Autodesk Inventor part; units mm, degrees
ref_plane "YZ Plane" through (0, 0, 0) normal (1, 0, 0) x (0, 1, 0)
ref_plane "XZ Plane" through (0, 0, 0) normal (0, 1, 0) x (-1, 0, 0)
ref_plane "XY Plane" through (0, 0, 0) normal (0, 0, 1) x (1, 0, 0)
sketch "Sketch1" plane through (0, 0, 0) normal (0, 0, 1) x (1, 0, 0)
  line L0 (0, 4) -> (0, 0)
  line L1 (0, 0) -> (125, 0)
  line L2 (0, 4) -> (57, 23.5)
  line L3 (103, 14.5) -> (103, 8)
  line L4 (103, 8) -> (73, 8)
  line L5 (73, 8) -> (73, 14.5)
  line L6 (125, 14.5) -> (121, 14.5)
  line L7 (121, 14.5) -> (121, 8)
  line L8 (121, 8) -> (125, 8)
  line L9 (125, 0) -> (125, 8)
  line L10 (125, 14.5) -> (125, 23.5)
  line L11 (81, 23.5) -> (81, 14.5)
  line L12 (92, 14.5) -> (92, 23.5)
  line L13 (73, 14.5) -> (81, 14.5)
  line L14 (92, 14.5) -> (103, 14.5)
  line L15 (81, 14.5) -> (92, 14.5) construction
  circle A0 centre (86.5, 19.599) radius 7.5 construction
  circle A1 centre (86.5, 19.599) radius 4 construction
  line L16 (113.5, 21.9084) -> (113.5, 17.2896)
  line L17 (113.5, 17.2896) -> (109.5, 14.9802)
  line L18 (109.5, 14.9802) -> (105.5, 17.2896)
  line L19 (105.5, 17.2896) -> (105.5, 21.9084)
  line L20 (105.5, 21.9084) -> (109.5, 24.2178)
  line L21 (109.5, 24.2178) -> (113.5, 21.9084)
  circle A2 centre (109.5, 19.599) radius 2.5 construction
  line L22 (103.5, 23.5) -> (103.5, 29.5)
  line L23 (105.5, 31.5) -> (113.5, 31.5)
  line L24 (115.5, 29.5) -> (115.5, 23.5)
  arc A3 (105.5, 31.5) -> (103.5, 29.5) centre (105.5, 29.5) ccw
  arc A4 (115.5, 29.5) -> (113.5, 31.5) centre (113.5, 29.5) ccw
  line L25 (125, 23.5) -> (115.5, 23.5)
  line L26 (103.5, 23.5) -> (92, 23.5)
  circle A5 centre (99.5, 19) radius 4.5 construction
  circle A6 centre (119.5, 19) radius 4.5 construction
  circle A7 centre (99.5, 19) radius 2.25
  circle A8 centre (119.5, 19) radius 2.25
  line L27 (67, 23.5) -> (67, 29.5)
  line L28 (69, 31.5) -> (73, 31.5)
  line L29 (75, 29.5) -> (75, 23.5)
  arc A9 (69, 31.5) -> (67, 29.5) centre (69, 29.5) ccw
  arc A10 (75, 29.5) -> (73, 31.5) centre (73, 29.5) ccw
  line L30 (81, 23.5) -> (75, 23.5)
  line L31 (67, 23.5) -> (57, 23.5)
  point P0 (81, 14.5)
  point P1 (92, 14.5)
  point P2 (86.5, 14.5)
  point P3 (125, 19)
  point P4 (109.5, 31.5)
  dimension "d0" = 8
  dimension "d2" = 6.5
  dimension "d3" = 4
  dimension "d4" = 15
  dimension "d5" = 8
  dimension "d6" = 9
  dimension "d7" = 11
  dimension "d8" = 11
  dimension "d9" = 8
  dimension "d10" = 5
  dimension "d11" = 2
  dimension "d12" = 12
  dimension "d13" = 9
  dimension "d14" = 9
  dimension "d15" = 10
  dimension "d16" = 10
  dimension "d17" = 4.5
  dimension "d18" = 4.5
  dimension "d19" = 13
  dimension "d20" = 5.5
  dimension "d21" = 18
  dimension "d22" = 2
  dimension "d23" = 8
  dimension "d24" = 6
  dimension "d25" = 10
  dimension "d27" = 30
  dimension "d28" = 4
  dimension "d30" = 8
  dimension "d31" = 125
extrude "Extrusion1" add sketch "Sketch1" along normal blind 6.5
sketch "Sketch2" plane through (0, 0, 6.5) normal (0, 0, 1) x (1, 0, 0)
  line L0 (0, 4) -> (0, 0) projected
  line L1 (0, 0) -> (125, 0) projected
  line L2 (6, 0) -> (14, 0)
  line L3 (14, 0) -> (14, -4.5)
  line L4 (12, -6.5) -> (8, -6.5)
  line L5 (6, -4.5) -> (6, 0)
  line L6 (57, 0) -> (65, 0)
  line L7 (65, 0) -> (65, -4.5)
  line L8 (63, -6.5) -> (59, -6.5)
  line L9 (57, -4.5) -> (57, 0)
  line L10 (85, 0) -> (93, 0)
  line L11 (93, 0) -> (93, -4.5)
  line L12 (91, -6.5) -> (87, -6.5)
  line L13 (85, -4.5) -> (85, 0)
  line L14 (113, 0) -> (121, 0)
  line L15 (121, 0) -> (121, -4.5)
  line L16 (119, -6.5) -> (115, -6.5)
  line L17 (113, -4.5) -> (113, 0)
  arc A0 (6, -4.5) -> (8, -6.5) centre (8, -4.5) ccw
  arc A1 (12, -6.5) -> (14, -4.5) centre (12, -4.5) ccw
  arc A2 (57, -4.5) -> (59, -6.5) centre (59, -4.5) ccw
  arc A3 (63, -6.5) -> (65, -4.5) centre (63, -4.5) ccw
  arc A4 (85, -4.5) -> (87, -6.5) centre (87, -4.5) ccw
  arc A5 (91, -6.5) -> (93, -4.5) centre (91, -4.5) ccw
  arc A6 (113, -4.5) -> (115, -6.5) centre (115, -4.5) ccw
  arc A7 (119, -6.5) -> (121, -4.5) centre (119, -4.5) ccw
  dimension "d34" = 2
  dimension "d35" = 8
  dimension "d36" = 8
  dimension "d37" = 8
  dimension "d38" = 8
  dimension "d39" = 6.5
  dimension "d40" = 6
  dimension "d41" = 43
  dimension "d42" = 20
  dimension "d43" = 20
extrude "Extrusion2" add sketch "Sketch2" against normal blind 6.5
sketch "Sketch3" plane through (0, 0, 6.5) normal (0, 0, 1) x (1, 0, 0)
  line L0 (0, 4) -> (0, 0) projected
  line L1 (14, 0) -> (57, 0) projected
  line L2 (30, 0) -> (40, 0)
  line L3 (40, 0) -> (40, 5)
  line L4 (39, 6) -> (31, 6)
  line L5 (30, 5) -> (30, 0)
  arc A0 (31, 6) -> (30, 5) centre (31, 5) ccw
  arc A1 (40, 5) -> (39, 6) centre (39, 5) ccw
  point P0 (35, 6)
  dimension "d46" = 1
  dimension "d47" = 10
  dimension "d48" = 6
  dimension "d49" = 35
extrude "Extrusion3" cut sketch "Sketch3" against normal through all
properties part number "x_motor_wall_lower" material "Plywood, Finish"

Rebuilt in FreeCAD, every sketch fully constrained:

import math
import FreeCAD as App
import Part
import Sketcher
from FreeCAD import Vector
Q = App.Units.Quantity

doc = App.newDocument("Part")
body = doc.addObject("PartDesign::Body", "Body")

sketch1 = body.newObject("Sketcher::SketchObject", "Sketch")
sketch1.AttachmentSupport = (doc.getObject("XY_Plane"), [""])
sketch1.MapMode = "FlatFace"
sketch1.addGeometry([
    Part.LineSegment(Vector(57, 23.5, 0), Vector(0, 4, 0)),
    Part.LineSegment(Vector(0, 4, 0), Vector(0, 0, 0)),
    Part.LineSegment(Vector(0, 0, 0), Vector(125, 0, 0)),
    Part.LineSegment(Vector(125, 0, 0), Vector(125, 8, 0)),
    Part.LineSegment(Vector(125, 8, 0), Vector(121, 8, 0)),
    Part.LineSegment(Vector(121, 8, 0), Vector(121, 14.5, 0)),
    Part.LineSegment(Vector(121, 14.5, 0), Vector(125, 14.5, 0)),
    Part.LineSegment(Vector(125, 14.5, 0), Vector(125, 23.5, 0)),
    Part.LineSegment(Vector(125, 23.5, 0), Vector(115.5, 23.5, 0)),
    Part.LineSegment(Vector(115.5, 23.5, 0), Vector(115.5, 29.5, 0)),
    Part.ArcOfCircle(Part.Circle(Vector(113.5, 29.5, 0), Vector(0, 0, 1), 2), math.radians(0), math.radians(90)),
    Part.LineSegment(Vector(113.5, 31.5, 0), Vector(105.5, 31.5, 0)),
    Part.ArcOfCircle(Part.Circle(Vector(105.5, 29.5, 0), Vector(0, 0, 1), 2), math.radians(90), math.radians(180)),
    Part.LineSegment(Vector(103.5, 29.5, 0), Vector(103.5, 23.5, 0)),
    Part.LineSegment(Vector(103.5, 23.5, 0), Vector(92, 23.5, 0)),
    Part.LineSegment(Vector(92, 23.5, 0), Vector(92, 14.5, 0)),
    Part.LineSegment(Vector(92, 14.5, 0), Vector(103, 14.5, 0)),
    Part.LineSegment(Vector(103, 14.5, 0), Vector(103, 8, 0)),
    Part.LineSegment(Vector(103, 8, 0), Vector(73, 8, 0)),
    Part.LineSegment(Vector(73, 8, 0), Vector(73, 14.5, 0)),
    Part.LineSegment(Vector(73, 14.5, 0), Vector(81, 14.5, 0)),
    Part.LineSegment(Vector(81, 14.5, 0), Vector(81, 23.5, 0)),
    Part.LineSegment(Vector(81, 23.5, 0), Vector(75, 23.5, 0)),
    Part.LineSegment(Vector(75, 23.5, 0), Vector(75, 29.5, 0)),
    Part.ArcOfCircle(Part.Circle(Vector(73, 29.5, 0), Vector(0, 0, 1), 2), math.radians(0), math.radians(90)),
    Part.LineSegment(Vector(73, 31.5, 0), Vector(69, 31.5, 0)),
    Part.ArcOfCircle(Part.Circle(Vector(69, 29.5, 0), Vector(0, 0, 1), 2), math.radians(90), math.radians(180)),
    Part.LineSegment(Vector(67, 29.5, 0), Vector(67, 23.5, 0)),
    Part.LineSegment(Vector(67, 23.5, 0), Vector(57, 23.5, 0)),
    Part.Circle(Vector(99.5, 19, 0), Vector(0, 0, 1), 2.2),
    Part.LineSegment(Vector(109.5, 24.2, 0), Vector(113.5, 21.9, 0)),
    Part.LineSegment(Vector(113.5, 21.9, 0), Vector(113.5, 17.3, 0)),
    Part.LineSegment(Vector(113.5, 17.3, 0), Vector(109.5, 15, 0)),
    Part.LineSegment(Vector(109.5, 15, 0), Vector(105.5, 17.3, 0)),
    Part.LineSegment(Vector(105.5, 17.3, 0), Vector(105.5, 21.9, 0)),
    Part.LineSegment(Vector(105.5, 21.9, 0), Vector(109.5, 24.2, 0)),
    Part.Circle(Vector(119.5, 19, 0), Vector(0, 0, 1), 2.2),
], False)
sketch1.addConstraint([
    Sketcher.Constraint("Coincident", 0, 2, 1, 1),
    Sketcher.Constraint("Coincident", 1, 2, 2, 1),
    Sketcher.Constraint("Coincident", 2, 2, 3, 1),
    Sketcher.Constraint("Coincident", 3, 2, 4, 1),
    Sketcher.Constraint("Coincident", 4, 2, 5, 1),
    Sketcher.Constraint("Coincident", 5, 2, 6, 1),
    Sketcher.Constraint("Coincident", 6, 2, 7, 1),
    Sketcher.Constraint("Coincident", 7, 2, 8, 1),
    Sketcher.Constraint("Coincident", 8, 2, 9, 1),
    Sketcher.Constraint("Tangent", 9, 2, 10, 1),
    Sketcher.Constraint("Tangent", 10, 2, 11, 1),
    Sketcher.Constraint("Tangent", 11, 2, 12, 1),
    Sketcher.Constraint("Tangent", 12, 2, 13, 1),
    Sketcher.Constraint("Coincident", 13, 2, 14, 1),
    Sketcher.Constraint("Coincident", 14, 2, 15, 1),
    Sketcher.Constraint("Coincident", 15, 2, 16, 1),
    Sketcher.Constraint("Coincident", 16, 2, 17, 1),
    Sketcher.Constraint("Coincident", 17, 2, 18, 1),
    Sketcher.Constraint("Coincident", 18, 2, 19, 1),
    Sketcher.Constraint("Coincident", 19, 2, 20, 1),
    Sketcher.Constraint("Coincident", 20, 2, 21, 1),
    Sketcher.Constraint("Coincident", 21, 2, 22, 1),
    Sketcher.Constraint("Coincident", 22, 2, 23, 1),
    Sketcher.Constraint("Tangent", 23, 2, 24, 1),
    Sketcher.Constraint("Tangent", 24, 2, 25, 1),
    Sketcher.Constraint("Tangent", 25, 2, 26, 1),
    Sketcher.Constraint("Tangent", 26, 2, 27, 1),
    Sketcher.Constraint("Coincident", 27, 2, 28, 1),
    Sketcher.Constraint("Coincident", 28, 2, 0, 1),
    Sketcher.Constraint("Coincident", 30, 2, 31, 1),
    Sketcher.Constraint("Coincident", 31, 2, 32, 1),
    Sketcher.Constraint("Coincident", 32, 2, 33, 1),
    Sketcher.Constraint("Coincident", 33, 2, 34, 1),
    Sketcher.Constraint("Coincident", 34, 2, 35, 1),
    Sketcher.Constraint("Coincident", 35, 2, 30, 1),
    Sketcher.Constraint("Vertical", 1),
    Sketcher.Constraint("Horizontal", 2),
    Sketcher.Constraint("Vertical", 3),
    Sketcher.Constraint("Horizontal", 4),
    Sketcher.Constraint("Vertical", 5),
    Sketcher.Constraint("Horizontal", 6),
    Sketcher.Constraint("Vertical", 7),
    Sketcher.Constraint("Horizontal", 8),
    Sketcher.Constraint("Vertical", 9),
    Sketcher.Constraint("Horizontal", 11),
    Sketcher.Constraint("Vertical", 13),
    Sketcher.Constraint("Horizontal", 14),
    Sketcher.Constraint("Vertical", 15),
    Sketcher.Constraint("Horizontal", 16),
    Sketcher.Constraint("Vertical", 17),
    Sketcher.Constraint("Horizontal", 18),
    Sketcher.Constraint("Vertical", 19),
    Sketcher.Constraint("Horizontal", 20),
    Sketcher.Constraint("Vertical", 21),
    Sketcher.Constraint("Horizontal", 22),
    Sketcher.Constraint("Vertical", 23),
    Sketcher.Constraint("Horizontal", 25),
    Sketcher.Constraint("Vertical", 27),
    Sketcher.Constraint("Horizontal", 28),
    Sketcher.Constraint("Vertical", 31),
    Sketcher.Constraint("Vertical", 34),
    Sketcher.Constraint("Coincident", 1, 2, -1, 1),
    Sketcher.Constraint("Equal", 10, 12),
    Sketcher.Constraint("Equal", 12, 24),
    Sketcher.Constraint("Equal", 24, 26),
    Sketcher.Constraint("Equal", 29, 36),
    Sketcher.Constraint("Parallel", 30, 33),
    Sketcher.Constraint("Parallel", 32, 35),
    Sketcher.Constraint("Horizontal", 12, 3, 24, 3),
    Sketcher.Constraint("Horizontal", 29, 3, 36, 3),
    Sketcher.Constraint("Horizontal", 8, 2, 13, 2),
    Sketcher.Constraint("Horizontal", 6, 2, 15, 2),
    Sketcher.Constraint("Horizontal", 4, 2, 17, 2),
    Sketcher.Constraint("Horizontal", 16, 2, 19, 2),
    Sketcher.Constraint("Horizontal", 14, 2, 21, 2),
    Sketcher.Constraint("Horizontal", 22, 2, 27, 2),
    Sketcher.Constraint("Horizontal", 31, 2, 33, 2),
    Sketcher.Constraint("Horizontal", 30, 2, 34, 2),
    Sketcher.Constraint("Vertical", 3, 2, 6, 2),
    Sketcher.Constraint("Vertical", 24, 3, 18, 2),
    Sketcher.Constraint("Vertical", 10, 2, 30, 2),
    Sketcher.Constraint("Vertical", 11, 2, 33, 2),
    Sketcher.Constraint("Vertical", 32, 2, 35, 2),
    Sketcher.Constraint("Equal", 11, 20),
    Sketcher.Constraint("Equal", 6, 25),
    Sketcher.Constraint("Equal", 25, 1),
    Sketcher.Constraint("Equal", 20, 3),
    Sketcher.Constraint("Equal", 22, 9),
    Sketcher.Constraint("Radius", 10, Q("2 mm")),
    Sketcher.Constraint("Diameter", 29, Q("4.5 mm")),
    Sketcher.Constraint("DistanceX", 2, 1, 2, 2, Q("125 mm")),
    Sketcher.Constraint("DistanceX", 4, 2, 4, 1, Q("4 mm")),
    Sketcher.Constraint("DistanceX", 11, 2, 11, 1, Q("8 mm")),
    Sketcher.Constraint("DistanceX", 16, 1, 16, 2, Q("11 mm")),
    Sketcher.Constraint("DistanceX", 18, 2, 18, 1, Q("30 mm")),
    Sketcher.Constraint("DistanceX", 28, 2, 28, 1, Q("10 mm")),
    Sketcher.Constraint("DistanceY", 7, 1, 7, 2, Q("9 mm")),
    Sketcher.Constraint("Angle", 30, Q("-30 deg")),
    Sketcher.Constraint("DistanceY", 5, 1, 5, 2, Q("6.5 mm")),
    Sketcher.Constraint("DistanceX", 29, 3, 12, 3, Q("6 mm")),
    Sketcher.Constraint("DistanceX", 10, 3, 36, 3, Q("6 mm")),
    Sketcher.Constraint("DistanceY", 0, 2, 29, 3, Q("15 mm")),
    Sketcher.Constraint("DistanceX", 17, 2, 4, 2, Q("18 mm")),
    Sketcher.Constraint("DistanceX", 36, 3, 2, 2, Q("5.5 mm")),
    Sketcher.Constraint("DistanceY", 31, 2, 31, 1, Q("4.6188 mm")),
    Sketcher.Constraint("DistanceY", -1, 1, 30, 2, Q("21.9084 mm")),
])
pad1 = body.newObject("PartDesign::Pad", "Pad")
pad1.Profile = sketch1
pad1.Length = 6.5

sketch2 = body.newObject("Sketcher::SketchObject", "Sketch001")
sketch2.AttachmentSupport = (doc.getObject("XY_Plane"), [""])
sketch2.MapMode = "FlatFace"
sketch2.AttachmentOffset = App.Placement(Vector(0, 0, 6.5), App.Rotation())
sketch2.addGeometry([
    Part.LineSegment(Vector(121, 0, 0), Vector(113, 0, 0)),
    Part.LineSegment(Vector(113, 0, 0), Vector(113, -4.5, 0)),
    Part.ArcOfCircle(Part.Circle(Vector(115, -4.5, 0), Vector(0, 0, 1), 2), math.radians(180), math.radians(270)),
    Part.LineSegment(Vector(115, -6.5, 0), Vector(119, -6.5, 0)),
    Part.ArcOfCircle(Part.Circle(Vector(119, -4.5, 0), Vector(0, 0, 1), 2), math.radians(-90), math.radians(0)),
    Part.LineSegment(Vector(121, -4.5, 0), Vector(121, 0, 0)),
    Part.LineSegment(Vector(93, 0, 0), Vector(85, 0, 0)),
    Part.LineSegment(Vector(85, 0, 0), Vector(85, -4.5, 0)),
    Part.ArcOfCircle(Part.Circle(Vector(87, -4.5, 0), Vector(0, 0, 1), 2), math.radians(180), math.radians(270)),
    Part.LineSegment(Vector(87, -6.5, 0), Vector(91, -6.5, 0)),
    Part.ArcOfCircle(Part.Circle(Vector(91, -4.5, 0), Vector(0, 0, 1), 2), math.radians(-90), math.radians(0)),
    Part.LineSegment(Vector(93, -4.5, 0), Vector(93, 0, 0)),
    Part.LineSegment(Vector(65, 0, 0), Vector(57, 0, 0)),
    Part.LineSegment(Vector(57, 0, 0), Vector(57, -4.5, 0)),
    Part.ArcOfCircle(Part.Circle(Vector(59, -4.5, 0), Vector(0, 0, 1), 2), math.radians(180), math.radians(270)),
    Part.LineSegment(Vector(59, -6.5, 0), Vector(63, -6.5, 0)),
    Part.ArcOfCircle(Part.Circle(Vector(63, -4.5, 0), Vector(0, 0, 1), 2), math.radians(-90), math.radians(0)),
    Part.LineSegment(Vector(65, -4.5, 0), Vector(65, 0, 0)),
    Part.LineSegment(Vector(14, 0, 0), Vector(6, 0, 0)),
    Part.LineSegment(Vector(6, 0, 0), Vector(6, -4.5, 0)),
    Part.ArcOfCircle(Part.Circle(Vector(8, -4.5, 0), Vector(0, 0, 1), 2), math.radians(180), math.radians(270)),
    Part.LineSegment(Vector(8, -6.5, 0), Vector(12, -6.5, 0)),
    Part.ArcOfCircle(Part.Circle(Vector(12, -4.5, 0), Vector(0, 0, 1), 2), math.radians(-90), math.radians(0)),
    Part.LineSegment(Vector(14, -4.5, 0), Vector(14, 0, 0)),
], False)
sketch2.addConstraint([
    Sketcher.Constraint("Coincident", 0, 2, 1, 1),
    Sketcher.Constraint("Tangent", 1, 2, 2, 1),
    Sketcher.Constraint("Tangent", 2, 2, 3, 1),
    Sketcher.Constraint("Tangent", 3, 2, 4, 1),
    Sketcher.Constraint("Tangent", 4, 2, 5, 1),
    Sketcher.Constraint("Coincident", 5, 2, 0, 1),
    Sketcher.Constraint("Coincident", 6, 2, 7, 1),
    Sketcher.Constraint("Tangent", 7, 2, 8, 1),
    Sketcher.Constraint("Tangent", 8, 2, 9, 1),
    Sketcher.Constraint("Tangent", 9, 2, 10, 1),
    Sketcher.Constraint("Tangent", 10, 2, 11, 1),
    Sketcher.Constraint("Coincident", 11, 2, 6, 1),
    Sketcher.Constraint("Coincident", 12, 2, 13, 1),
    Sketcher.Constraint("Tangent", 13, 2, 14, 1),
    Sketcher.Constraint("Tangent", 14, 2, 15, 1),
    Sketcher.Constraint("Tangent", 15, 2, 16, 1),
    Sketcher.Constraint("Tangent", 16, 2, 17, 1),
    Sketcher.Constraint("Coincident", 17, 2, 12, 1),
    Sketcher.Constraint("Coincident", 18, 2, 19, 1),
    Sketcher.Constraint("Tangent", 19, 2, 20, 1),
    Sketcher.Constraint("Tangent", 20, 2, 21, 1),
    Sketcher.Constraint("Tangent", 21, 2, 22, 1),
    Sketcher.Constraint("Tangent", 22, 2, 23, 1),
    Sketcher.Constraint("Coincident", 23, 2, 18, 1),
    Sketcher.Constraint("Horizontal", 0),
    Sketcher.Constraint("Vertical", 1),
    Sketcher.Constraint("Horizontal", 3),
    Sketcher.Constraint("Vertical", 5),
    Sketcher.Constraint("Horizontal", 6),
    Sketcher.Constraint("Vertical", 7),
    Sketcher.Constraint("Horizontal", 9),
    Sketcher.Constraint("Vertical", 11),
    Sketcher.Constraint("Horizontal", 12),
    Sketcher.Constraint("Vertical", 13),
    Sketcher.Constraint("Horizontal", 15),
    Sketcher.Constraint("Vertical", 17),
    Sketcher.Constraint("Horizontal", 18),
    Sketcher.Constraint("Vertical", 19),
    Sketcher.Constraint("Horizontal", 21),
    Sketcher.Constraint("Vertical", 23),
    Sketcher.Constraint("Equal", 2, 4),
    Sketcher.Constraint("Equal", 4, 8),
    Sketcher.Constraint("Equal", 8, 10),
    Sketcher.Constraint("Equal", 10, 14),
    Sketcher.Constraint("Equal", 14, 16),
    Sketcher.Constraint("Equal", 16, 20),
    Sketcher.Constraint("Equal", 20, 22),
    Sketcher.Constraint("PointOnObject", 0, 2, -1),
    Sketcher.Constraint("PointOnObject", 6, 2, -1),
    Sketcher.Constraint("PointOnObject", 12, 2, -1),
    Sketcher.Constraint("PointOnObject", 18, 2, -1),
    Sketcher.Constraint("Horizontal", 4, 3, 8, 3),
    Sketcher.Constraint("Horizontal", 10, 3, 14, 3),
    Sketcher.Constraint("Horizontal", 16, 3, 20, 3),
    Sketcher.Constraint("Equal", 0, 6),
    Sketcher.Constraint("Equal", 6, 12),
    Sketcher.Constraint("Equal", 12, 18),
    Sketcher.Constraint("Radius", 2, Q("2 mm")),
    Sketcher.Constraint("DistanceX", 0, 2, 0, 1, Q("8 mm")),
    Sketcher.Constraint("DistanceX", -1, 1, 20, 3, Q("8 mm")),
    Sketcher.Constraint("DistanceY", 2, 2, -1, 1, Q("6.5 mm")),
    Sketcher.Constraint("DistanceX", -1, 1, 2, 3, Q("115 mm")),
    Sketcher.Constraint("DistanceX", -1, 1, 8, 3, Q("87 mm")),
    Sketcher.Constraint("DistanceX", -1, 1, 14, 3, Q("59 mm")),
])
pad2 = body.newObject("PartDesign::Pad", "Pad001")
pad2.Profile = sketch2
pad2.Length = 6.5
pad2.Reversed = True

sketch3 = body.newObject("Sketcher::SketchObject", "Sketch002")
sketch3.AttachmentSupport = (doc.getObject("XY_Plane"), [""])
sketch3.MapMode = "FlatFace"
sketch3.AttachmentOffset = App.Placement(Vector(0, 0, 6.5), App.Rotation())
sketch3.addGeometry([
    Part.LineSegment(Vector(30, 5, 0), Vector(30, 0, 0)),
    Part.LineSegment(Vector(30, 0, 0), Vector(40, 0, 0)),
    Part.LineSegment(Vector(40, 0, 0), Vector(40, 5, 0)),
    Part.ArcOfCircle(Part.Circle(Vector(39, 5, 0), Vector(0, 0, 1), 1), math.radians(0), math.radians(90)),
    Part.LineSegment(Vector(39, 6, 0), Vector(31, 6, 0)),
    Part.ArcOfCircle(Part.Circle(Vector(31, 5, 0), Vector(0, 0, 1), 1), math.radians(90), math.radians(180)),
], False)
sketch3.addConstraint([
    Sketcher.Constraint("Coincident", 0, 2, 1, 1),
    Sketcher.Constraint("Coincident", 1, 2, 2, 1),
    Sketcher.Constraint("Tangent", 2, 2, 3, 1),
    Sketcher.Constraint("Tangent", 3, 2, 4, 1),
    Sketcher.Constraint("Tangent", 4, 2, 5, 1),
    Sketcher.Constraint("Tangent", 5, 2, 0, 1),
    Sketcher.Constraint("Vertical", 0),
    Sketcher.Constraint("Horizontal", 1),
    Sketcher.Constraint("Vertical", 2),
    Sketcher.Constraint("Horizontal", 4),
    Sketcher.Constraint("Equal", 3, 5),
    Sketcher.Constraint("PointOnObject", 0, 2, -1),
    Sketcher.Constraint("Radius", 3, Q("1 mm")),
    Sketcher.Constraint("DistanceX", 1, 1, 1, 2, Q("10 mm")),
    Sketcher.Constraint("DistanceY", -1, 1, 3, 2, Q("6 mm")),
    Sketcher.Constraint("DistanceX", -1, 1, 3, 3, Q("39 mm")),
])
pocket1 = body.newObject("PartDesign::Pocket", "Pocket")
pocket1.Profile = sketch3
pocket1.Type = "ThroughAll"

doc.recompute()
